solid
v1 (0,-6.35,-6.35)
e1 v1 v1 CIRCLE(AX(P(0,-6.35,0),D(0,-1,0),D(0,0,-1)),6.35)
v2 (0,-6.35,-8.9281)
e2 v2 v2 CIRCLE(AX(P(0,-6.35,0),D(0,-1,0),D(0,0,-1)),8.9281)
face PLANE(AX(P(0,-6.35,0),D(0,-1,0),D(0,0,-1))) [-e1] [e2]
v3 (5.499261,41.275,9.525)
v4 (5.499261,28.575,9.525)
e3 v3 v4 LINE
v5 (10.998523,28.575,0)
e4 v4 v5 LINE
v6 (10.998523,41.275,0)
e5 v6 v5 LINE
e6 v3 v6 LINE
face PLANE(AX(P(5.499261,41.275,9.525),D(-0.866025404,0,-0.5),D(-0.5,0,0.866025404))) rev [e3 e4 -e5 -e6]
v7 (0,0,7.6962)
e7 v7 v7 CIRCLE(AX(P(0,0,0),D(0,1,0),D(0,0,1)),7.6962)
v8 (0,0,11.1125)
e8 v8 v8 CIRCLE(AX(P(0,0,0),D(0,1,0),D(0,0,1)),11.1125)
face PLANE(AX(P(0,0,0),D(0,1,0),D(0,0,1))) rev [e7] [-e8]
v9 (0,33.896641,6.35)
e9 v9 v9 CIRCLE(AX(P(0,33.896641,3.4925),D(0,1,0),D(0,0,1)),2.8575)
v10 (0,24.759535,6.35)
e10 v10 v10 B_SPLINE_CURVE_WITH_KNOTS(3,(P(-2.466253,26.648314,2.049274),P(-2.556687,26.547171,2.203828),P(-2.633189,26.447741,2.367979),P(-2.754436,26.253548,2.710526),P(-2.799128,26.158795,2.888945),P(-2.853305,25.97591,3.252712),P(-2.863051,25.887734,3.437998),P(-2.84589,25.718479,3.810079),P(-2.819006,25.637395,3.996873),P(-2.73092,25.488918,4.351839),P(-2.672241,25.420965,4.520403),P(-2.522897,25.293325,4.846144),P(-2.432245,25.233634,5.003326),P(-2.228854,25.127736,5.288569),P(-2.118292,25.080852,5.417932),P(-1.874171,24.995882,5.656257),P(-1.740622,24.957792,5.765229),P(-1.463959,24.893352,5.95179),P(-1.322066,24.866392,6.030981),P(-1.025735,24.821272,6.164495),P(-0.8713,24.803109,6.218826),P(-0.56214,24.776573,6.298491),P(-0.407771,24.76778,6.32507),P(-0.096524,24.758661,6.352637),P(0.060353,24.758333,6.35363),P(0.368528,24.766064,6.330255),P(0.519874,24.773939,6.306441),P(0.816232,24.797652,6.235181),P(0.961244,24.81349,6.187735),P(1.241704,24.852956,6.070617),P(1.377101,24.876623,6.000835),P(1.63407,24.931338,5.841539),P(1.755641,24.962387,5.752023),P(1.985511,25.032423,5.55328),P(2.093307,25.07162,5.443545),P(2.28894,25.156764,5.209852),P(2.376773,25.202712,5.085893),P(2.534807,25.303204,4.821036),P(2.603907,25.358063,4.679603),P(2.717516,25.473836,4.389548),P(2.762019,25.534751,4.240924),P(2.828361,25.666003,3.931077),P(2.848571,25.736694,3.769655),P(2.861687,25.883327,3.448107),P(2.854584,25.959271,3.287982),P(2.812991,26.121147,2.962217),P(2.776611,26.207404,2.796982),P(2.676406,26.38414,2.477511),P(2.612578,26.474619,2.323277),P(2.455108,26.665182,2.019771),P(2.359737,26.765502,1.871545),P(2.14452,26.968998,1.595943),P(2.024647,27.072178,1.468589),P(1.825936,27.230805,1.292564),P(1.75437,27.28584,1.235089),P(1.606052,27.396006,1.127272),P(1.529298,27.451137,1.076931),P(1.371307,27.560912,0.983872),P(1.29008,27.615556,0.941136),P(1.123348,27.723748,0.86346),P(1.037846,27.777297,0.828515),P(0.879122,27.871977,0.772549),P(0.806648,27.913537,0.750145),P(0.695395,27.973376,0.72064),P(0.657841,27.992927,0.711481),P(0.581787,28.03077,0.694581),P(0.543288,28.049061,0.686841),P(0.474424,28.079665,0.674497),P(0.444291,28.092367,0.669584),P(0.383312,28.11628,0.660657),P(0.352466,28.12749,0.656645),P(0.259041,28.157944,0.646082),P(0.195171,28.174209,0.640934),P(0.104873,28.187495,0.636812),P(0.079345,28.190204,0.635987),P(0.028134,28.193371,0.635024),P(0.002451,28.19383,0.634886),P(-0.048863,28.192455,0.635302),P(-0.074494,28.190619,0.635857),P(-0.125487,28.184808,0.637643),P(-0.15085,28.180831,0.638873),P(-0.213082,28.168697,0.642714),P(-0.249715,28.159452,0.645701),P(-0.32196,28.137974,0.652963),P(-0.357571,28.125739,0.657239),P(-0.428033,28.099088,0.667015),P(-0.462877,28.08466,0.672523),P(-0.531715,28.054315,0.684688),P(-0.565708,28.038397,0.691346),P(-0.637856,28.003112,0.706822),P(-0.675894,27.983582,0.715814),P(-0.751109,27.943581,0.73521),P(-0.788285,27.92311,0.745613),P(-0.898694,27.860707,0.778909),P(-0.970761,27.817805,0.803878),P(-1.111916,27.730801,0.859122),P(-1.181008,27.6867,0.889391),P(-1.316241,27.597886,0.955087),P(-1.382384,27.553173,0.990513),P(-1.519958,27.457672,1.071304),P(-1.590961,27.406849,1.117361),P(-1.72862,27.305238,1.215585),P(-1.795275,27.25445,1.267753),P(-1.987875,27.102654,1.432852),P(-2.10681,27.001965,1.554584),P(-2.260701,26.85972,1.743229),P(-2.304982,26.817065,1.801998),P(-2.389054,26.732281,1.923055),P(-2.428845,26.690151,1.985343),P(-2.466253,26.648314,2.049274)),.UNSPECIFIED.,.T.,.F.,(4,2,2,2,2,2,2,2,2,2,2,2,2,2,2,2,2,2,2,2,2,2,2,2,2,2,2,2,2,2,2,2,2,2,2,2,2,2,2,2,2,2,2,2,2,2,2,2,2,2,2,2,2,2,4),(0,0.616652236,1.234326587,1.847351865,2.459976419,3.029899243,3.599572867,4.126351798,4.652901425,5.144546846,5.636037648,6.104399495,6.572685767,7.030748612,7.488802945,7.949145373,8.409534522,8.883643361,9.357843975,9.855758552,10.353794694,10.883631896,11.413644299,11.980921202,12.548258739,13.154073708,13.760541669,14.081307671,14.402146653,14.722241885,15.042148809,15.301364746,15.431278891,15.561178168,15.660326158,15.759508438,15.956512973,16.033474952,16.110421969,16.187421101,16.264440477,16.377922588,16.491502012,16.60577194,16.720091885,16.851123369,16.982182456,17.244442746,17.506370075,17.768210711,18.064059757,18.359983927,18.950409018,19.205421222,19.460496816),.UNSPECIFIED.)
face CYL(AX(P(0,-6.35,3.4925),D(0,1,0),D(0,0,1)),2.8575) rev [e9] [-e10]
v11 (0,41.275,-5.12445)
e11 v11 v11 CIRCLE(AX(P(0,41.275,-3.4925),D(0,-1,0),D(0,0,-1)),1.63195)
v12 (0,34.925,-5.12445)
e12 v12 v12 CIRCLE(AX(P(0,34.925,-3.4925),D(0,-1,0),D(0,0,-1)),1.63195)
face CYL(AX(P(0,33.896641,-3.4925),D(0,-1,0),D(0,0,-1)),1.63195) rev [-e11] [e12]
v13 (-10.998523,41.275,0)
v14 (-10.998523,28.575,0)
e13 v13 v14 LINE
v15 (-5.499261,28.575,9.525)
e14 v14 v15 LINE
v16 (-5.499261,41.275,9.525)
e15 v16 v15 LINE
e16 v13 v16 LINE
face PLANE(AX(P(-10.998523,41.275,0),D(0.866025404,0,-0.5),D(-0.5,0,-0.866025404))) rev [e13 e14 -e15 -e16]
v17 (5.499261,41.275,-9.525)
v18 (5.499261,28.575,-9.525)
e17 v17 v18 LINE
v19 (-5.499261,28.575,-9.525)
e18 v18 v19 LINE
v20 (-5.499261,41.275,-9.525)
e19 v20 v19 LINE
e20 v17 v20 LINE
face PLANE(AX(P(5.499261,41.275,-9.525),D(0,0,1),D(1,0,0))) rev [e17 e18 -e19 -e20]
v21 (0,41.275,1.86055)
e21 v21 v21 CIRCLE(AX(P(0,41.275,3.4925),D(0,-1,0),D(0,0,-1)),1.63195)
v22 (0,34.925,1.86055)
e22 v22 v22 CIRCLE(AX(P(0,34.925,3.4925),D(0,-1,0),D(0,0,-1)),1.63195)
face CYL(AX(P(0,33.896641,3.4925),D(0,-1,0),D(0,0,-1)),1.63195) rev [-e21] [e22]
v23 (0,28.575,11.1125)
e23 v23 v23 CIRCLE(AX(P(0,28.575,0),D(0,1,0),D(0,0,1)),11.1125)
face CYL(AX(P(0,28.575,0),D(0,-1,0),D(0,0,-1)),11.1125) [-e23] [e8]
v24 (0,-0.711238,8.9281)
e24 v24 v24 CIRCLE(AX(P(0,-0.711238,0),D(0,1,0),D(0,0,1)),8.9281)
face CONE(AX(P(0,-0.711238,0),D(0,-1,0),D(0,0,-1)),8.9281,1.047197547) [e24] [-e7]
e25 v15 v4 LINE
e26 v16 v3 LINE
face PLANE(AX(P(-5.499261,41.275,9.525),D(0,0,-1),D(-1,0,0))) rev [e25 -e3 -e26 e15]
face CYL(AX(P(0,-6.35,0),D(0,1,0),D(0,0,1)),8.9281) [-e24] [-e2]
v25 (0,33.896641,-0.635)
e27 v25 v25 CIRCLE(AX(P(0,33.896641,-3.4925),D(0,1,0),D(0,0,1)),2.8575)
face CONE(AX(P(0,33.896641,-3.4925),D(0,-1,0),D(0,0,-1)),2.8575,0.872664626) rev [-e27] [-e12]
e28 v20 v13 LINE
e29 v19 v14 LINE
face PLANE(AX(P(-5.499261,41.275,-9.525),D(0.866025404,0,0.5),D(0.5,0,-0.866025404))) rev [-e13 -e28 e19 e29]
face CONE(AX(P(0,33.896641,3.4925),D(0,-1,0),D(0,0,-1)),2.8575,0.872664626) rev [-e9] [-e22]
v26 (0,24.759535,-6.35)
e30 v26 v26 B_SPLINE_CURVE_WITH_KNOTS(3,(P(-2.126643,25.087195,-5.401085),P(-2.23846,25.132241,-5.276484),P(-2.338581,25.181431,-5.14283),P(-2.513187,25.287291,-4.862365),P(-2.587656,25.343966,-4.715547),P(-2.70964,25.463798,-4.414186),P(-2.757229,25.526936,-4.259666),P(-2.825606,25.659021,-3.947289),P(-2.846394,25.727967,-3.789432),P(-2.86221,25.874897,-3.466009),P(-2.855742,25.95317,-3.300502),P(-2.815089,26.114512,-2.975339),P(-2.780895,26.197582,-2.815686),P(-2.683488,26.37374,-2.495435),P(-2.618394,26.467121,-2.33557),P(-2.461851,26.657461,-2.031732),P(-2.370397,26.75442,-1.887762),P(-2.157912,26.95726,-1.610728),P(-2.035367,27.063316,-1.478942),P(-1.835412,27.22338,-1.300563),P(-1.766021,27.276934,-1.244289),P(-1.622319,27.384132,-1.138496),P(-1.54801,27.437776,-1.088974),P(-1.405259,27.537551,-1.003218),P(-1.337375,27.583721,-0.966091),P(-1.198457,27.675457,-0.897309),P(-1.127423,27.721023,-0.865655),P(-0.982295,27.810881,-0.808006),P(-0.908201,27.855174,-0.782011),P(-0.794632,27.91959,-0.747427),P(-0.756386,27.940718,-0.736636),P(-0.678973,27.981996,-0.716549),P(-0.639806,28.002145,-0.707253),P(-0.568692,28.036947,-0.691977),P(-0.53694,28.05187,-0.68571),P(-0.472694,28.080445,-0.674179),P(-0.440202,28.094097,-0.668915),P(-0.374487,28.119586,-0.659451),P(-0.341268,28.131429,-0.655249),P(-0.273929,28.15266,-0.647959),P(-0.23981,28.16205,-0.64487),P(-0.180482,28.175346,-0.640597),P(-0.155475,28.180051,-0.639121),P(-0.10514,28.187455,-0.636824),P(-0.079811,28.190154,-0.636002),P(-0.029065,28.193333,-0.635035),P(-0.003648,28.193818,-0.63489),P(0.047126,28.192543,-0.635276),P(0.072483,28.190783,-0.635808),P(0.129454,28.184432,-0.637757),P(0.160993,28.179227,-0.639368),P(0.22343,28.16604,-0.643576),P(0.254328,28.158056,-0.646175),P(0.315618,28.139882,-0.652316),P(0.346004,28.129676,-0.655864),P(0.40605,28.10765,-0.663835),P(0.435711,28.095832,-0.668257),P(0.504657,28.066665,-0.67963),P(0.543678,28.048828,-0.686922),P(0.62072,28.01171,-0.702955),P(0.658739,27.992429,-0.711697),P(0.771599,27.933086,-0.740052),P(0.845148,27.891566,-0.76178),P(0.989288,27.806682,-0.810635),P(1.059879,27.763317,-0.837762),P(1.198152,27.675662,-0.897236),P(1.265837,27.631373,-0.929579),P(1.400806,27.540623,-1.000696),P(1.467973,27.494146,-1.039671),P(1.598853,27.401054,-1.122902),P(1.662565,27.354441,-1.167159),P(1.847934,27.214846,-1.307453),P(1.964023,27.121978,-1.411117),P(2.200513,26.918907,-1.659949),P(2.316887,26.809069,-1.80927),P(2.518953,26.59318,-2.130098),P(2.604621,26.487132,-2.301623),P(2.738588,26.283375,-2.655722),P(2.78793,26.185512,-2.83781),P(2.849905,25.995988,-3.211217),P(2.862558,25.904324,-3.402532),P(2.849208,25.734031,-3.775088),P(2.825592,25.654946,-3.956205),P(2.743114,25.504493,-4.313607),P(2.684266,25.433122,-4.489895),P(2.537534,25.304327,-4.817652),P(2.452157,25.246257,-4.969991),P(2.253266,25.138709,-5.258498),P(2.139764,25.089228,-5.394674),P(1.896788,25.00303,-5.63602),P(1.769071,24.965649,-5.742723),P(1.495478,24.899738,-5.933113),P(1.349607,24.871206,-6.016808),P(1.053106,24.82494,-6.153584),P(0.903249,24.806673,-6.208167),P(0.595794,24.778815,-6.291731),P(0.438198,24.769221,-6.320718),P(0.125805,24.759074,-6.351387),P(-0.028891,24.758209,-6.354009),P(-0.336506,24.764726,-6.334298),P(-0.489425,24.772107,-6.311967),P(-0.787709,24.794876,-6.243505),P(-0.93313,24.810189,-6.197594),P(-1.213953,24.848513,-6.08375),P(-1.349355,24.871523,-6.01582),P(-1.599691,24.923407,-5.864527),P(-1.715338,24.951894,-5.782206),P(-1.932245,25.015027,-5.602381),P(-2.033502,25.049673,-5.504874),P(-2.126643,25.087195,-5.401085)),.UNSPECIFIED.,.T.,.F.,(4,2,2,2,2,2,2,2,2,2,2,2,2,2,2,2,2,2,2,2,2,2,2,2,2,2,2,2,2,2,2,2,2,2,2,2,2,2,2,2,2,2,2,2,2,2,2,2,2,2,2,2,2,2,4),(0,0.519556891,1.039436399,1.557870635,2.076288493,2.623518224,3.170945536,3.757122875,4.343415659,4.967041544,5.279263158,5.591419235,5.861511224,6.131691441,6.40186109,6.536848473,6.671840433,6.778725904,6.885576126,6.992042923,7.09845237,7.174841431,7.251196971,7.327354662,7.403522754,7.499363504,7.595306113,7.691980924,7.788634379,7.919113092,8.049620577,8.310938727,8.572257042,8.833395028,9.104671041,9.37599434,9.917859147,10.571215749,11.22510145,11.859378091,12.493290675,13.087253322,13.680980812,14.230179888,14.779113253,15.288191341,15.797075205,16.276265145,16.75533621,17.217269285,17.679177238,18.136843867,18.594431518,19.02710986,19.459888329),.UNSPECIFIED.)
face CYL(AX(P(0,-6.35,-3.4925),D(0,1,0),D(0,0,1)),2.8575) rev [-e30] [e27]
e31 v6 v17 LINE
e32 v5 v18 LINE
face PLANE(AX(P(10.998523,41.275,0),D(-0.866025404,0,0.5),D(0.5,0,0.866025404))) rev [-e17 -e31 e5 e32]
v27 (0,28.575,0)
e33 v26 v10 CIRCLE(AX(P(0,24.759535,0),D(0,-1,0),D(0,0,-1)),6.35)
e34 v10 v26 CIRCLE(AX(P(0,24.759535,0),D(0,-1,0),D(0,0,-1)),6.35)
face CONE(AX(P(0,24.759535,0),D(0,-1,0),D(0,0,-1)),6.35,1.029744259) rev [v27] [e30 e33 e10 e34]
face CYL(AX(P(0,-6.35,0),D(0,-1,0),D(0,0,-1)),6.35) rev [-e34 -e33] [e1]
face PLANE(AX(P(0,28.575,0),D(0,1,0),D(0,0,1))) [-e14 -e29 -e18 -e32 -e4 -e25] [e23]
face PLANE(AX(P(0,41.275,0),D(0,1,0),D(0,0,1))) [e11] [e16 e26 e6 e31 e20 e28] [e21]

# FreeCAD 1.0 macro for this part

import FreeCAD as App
import Part
import Sketcher
from FreeCAD import Vector
Q = App.Units.Quantity


def add_polygon(sketch, points):
    """Adds a closed chain of lines whose ends are joined by coincident constraints."""
    first, n = sketch.GeometryCount, len(points)
    for a, b in zip(points, points[1:] + points[:1]):
        sketch.addGeometry(Part.LineSegment(App.Vector(*a, 0), App.Vector(*b, 0)), False)
    for i in range(n):
        sketch.addConstraint(Sketcher.Constraint("Coincident", first + i, 2, first + (i + 1) % n, 1))

doc = App.newDocument("Part")
params = doc.addObject("Spreadsheet::Sheet", "Params")
for row, (alias, value) in enumerate([
    ("sketch1_diameter", "0.875 in"),
    ("pad1_length", "1.125 in"),
    ("pad2_length", "0.5 in"),
    ("sketch3_diameter", "0.703 in"),
    ("pad3_length", "0.25 in"),
    ("sketch4_diameter", "0.5 in"),
    ("hole_diameter", "0.5 in"),
    ("hole_depth", "31.109535 mm"),
    ("sketch5_width", "0.25 in"),
    ("groove_angle", "360 deg"),
    ("linearpattern_pitch", "0.275 in"),
    ("sketch6_diameter", "0.225 in"),
    ("groove2_angle", "360 deg"),
], start=1):
    params.set(f"A{row}", alias)
    params.set(f"B{row}", "=" + value)
    params.setAlias(f"B{row}", alias)

body = doc.addObject("PartDesign::Body", "Body")

# Sketch on XZ plane
sketch1 = body.newObject("Sketcher::SketchObject", "Sketch")
sketch1.AttachmentSupport = (doc.getObject("XZ_Plane"), [""])
sketch1.MapMode = "FlatFace"
sketch1.addGeometry(Part.Circle(Vector(0, 0, 0), Vector(0, 0, 1), 11), False)
sketch1.addConstraint(Sketcher.Constraint("Coincident", 0, 3, -1, 1))
sketch1.addConstraint(Sketcher.Constraint("Diameter", 0, Q("0.875 in")))
sketch1.setExpression("Constraints[1]", "Params.sketch1_diameter")
pad1 = body.newObject("PartDesign::Pad", "Pad")
pad1.Profile = sketch1
pad1.setExpression("Length", "Params.pad1_length")
pad1.Reversed = True

# Sketch on XZ plane
sketch2 = body.newObject("Sketcher::SketchObject", "Sketch001")
sketch2.AttachmentSupport = (doc.getObject("XZ_Plane"), [""])
sketch2.MapMode = "FlatFace"
sketch2.AttachmentOffset = App.Placement(Vector(0, 0, -1.125 * 25.4), App.Rotation())
add_polygon(sketch2, [(5, -10), (-5, -10), (-11, 0), (-5, 10), (5, 10), (11, 0)])  # lines 0-5
sketch2.addConstraint(Sketcher.Constraint("Horizontal", 0))
sketch2.addConstraint(Sketcher.Constraint("Horizontal", 3))
sketch2.addConstraint(Sketcher.Constraint("Symmetric", 0, 2, 3, 2, -1, 1))
sketch2.addConstraint(Sketcher.Constraint("Symmetric", 1, 2, 4, 2, -1, 1))
sketch2.addConstraint(Sketcher.Constraint("PointOnObject", 1, 2, -1))
sketch2.addConstraint(Sketcher.Constraint("Parallel", 2, 5))
sketch2.addConstraint(Sketcher.Constraint("Vertical", 0, 2, 2, 2))
sketch2.addConstraint(Sketcher.Constraint("Angle", 1, Q("120 deg")))
sketch2.addConstraint(Sketcher.Constraint("DistanceY", 0, 2, 2, 2, Q("0.75 in")))
sketch2.addConstraint(Sketcher.Constraint("DistanceX", 0, 2, 0, 1, 10.998523))
pad2 = body.newObject("PartDesign::Pad", "Pad001")
pad2.Profile = sketch2
pad2.setExpression("Length", "Params.pad2_length")
pad2.Reversed = True

# Sketch on XZ plane
sketch3 = body.newObject("Sketcher::SketchObject", "Sketch002")
sketch3.AttachmentSupport = (doc.getObject("XZ_Plane"), [""])
sketch3.MapMode = "FlatFace"
sketch3.addGeometry(Part.Circle(Vector(0, 0, 0), Vector(0, 0, 1), 9), False)
sketch3.addConstraint(Sketcher.Constraint("Coincident", 0, 3, -1, 1))
sketch3.addConstraint(Sketcher.Constraint("Diameter", 0, Q("0.703 in")))
sketch3.setExpression("Constraints[1]", "Params.sketch3_diameter")
pad3 = body.newObject("PartDesign::Pad", "Pad002")
pad3.Profile = sketch3
pad3.setExpression("Length", "Params.pad3_length")

# Sketch on XZ plane
sketch4 = body.newObject("Sketcher::SketchObject", "Sketch003")
sketch4.AttachmentSupport = (doc.getObject("XZ_Plane"), [""])
sketch4.MapMode = "FlatFace"
sketch4.AttachmentOffset = App.Placement(Vector(0, 0, 0.25 * 25.4), App.Rotation())
sketch4.addGeometry(Part.Circle(Vector(0, 0, 0), Vector(0, 0, 1), 6), False)
sketch4.addConstraint(Sketcher.Constraint("Coincident", 0, 3, -1, 1))
sketch4.addConstraint(Sketcher.Constraint("Diameter", 0, Q("0.5 in")))
sketch4.setExpression("Constraints[1]", "Params.sketch4_diameter")
doc.recompute()
hole = body.newObject("PartDesign::Hole", "Hole")
hole.Profile = sketch4
hole.ThreadType = "None"
hole.setExpression("Diameter", "Params.hole_diameter")
hole.DepthType = "Dimension"
hole.setExpression("Depth", "Params.hole_depth")
hole.DrillPoint = "Angled"
hole.DrillPointAngle = 118

# Sketch on YZ plane
sketch5 = body.newObject("Sketcher::SketchObject", "Sketch004")
sketch5.AttachmentSupport = (doc.getObject("YZ_Plane"), [""])
sketch5.MapMode = "FlatFace"
add_polygon(sketch5, [(41.3, 3.5), (33.9, 3.5), (33.9, 0.6), (34.9, 1.9), (41.3, 1.9)])  # lines 0-4
sketch5.addGeometry(Part.LineSegment(Vector(33.9, 3.5, 0), Vector(41.3, 3.5, 0)), True)  # axis
sketch5.addConstraint(Sketcher.Constraint("Horizontal", 0))
sketch5.addConstraint(Sketcher.Constraint("Vertical", 1))
sketch5.addConstraint(Sketcher.Constraint("Horizontal", 3))
sketch5.addConstraint(Sketcher.Constraint("Vertical", 4))
sketch5.addConstraint(Sketcher.Constraint("Horizontal", 5))
sketch5.addConstraint(Sketcher.Constraint("Coincident", 5, 1, 0, 2))
sketch5.addConstraint(Sketcher.Constraint("Vertical", 3, 2, 5, 2))
sketch5.addConstraint(Sketcher.Constraint("Angle", 2, Q("50 deg")))
sketch5.addConstraint(Sketcher.Constraint("DistanceX", 3, 1, 3, 2, Q("0.25 in")))
sketch5.addConstraint(Sketcher.Constraint("DistanceY", 1, 2, 1, 1, Q("0.1125 in")))
sketch5.addConstraint(Sketcher.Constraint("DistanceY", -1, 1, 1, 2, Q("0.025 in")))
sketch5.addConstraint(Sketcher.Constraint("DistanceX", -1, 1, 2, 2, Q("1.375 in")))
sketch5.addConstraint(Sketcher.Constraint("DistanceX", 0, 2, 0, 1, 7.378359))
sketch5.setExpression("Constraints[13]", "Params.sketch5_width")
groove = body.newObject("PartDesign::Groove", "Groove")
groove.Profile = sketch5
groove.ReferenceAxis = (sketch5, ["Axis0"])
groove.setExpression("Angle", "Params.groove_angle")
doc.recompute()

linearpattern = body.newObject("PartDesign::LinearPattern", "LinearPattern")
linearpattern.Originals = [groove]
linearpattern.Direction = (doc.getObject("Z_Axis"), [""])
linearpattern.Mode = "offset"
linearpattern.setExpression("Offset", "Params.linearpattern_pitch")
linearpattern.Occurrences = 2
linearpattern.Reversed = True
body.Tip = linearpattern

# Sketch on XZ plane
sketch6 = body.newObject("Sketcher::SketchObject", "Sketch005")
sketch6.AttachmentSupport = (doc.getObject("XZ_Plane"), [""])
sketch6.MapMode = "FlatFace"
sketch6.AttachmentOffset = App.Placement(Vector(0, 0, -33.896641), App.Rotation())
sketch6.addGeometry(Part.Circle(Vector(0, -3.5, 0), Vector(0, 0, 1), 2.9), False)
sketch6.addGeometry(Part.Circle(Vector(0, 3.5, 0), Vector(0, 0, 1), 2.9), False)
sketch6.addConstraint(Sketcher.Constraint("Equal", 0, 1))
sketch6.addConstraint(Sketcher.Constraint("Symmetric", 0, 3, 1, 3, -1, 1))
sketch6.addConstraint(Sketcher.Constraint("PointOnObject", 0, 3, -2))
sketch6.addConstraint(Sketcher.Constraint("Diameter", 0, Q("0.225 in")))
sketch6.addConstraint(Sketcher.Constraint("DistanceY", 0, 3, 1, 3, Q("0.275 in")))
sketch6.setExpression("Constraints[3]", "Params.sketch6_diameter")
pocket1 = body.newObject("PartDesign::Pocket", "Pocket")
pocket1.Profile = sketch6
pocket1.Type = "ThroughAll"
pocket1.Reversed = True

# Sketch on XY plane
sketch7 = body.newObject("Sketcher::SketchObject", "Sketch006")
sketch7.AttachmentSupport = (doc.getObject("XY_Plane"), [""])
sketch7.MapMode = "FlatFace"
add_polygon(sketch7, [(-7.7, 0), (-8.9, 0), (-8.9, -0.7)])  # lines 0-2
sketch7.addConstraint(Sketcher.Constraint("Horizontal", 0))
sketch7.addConstraint(Sketcher.Constraint("Vertical", 1))
sketch7.addConstraint(Sketcher.Constraint("PointOnObject", 0, 2, -1))
sketch7.addConstraint(Sketcher.Constraint("Angle", 2, Q("30 deg")))
sketch7.addConstraint(Sketcher.Constraint("DistanceX", 0, 2, 0, 1, Q("0.0485 in")))
sketch7.addConstraint(Sketcher.Constraint("DistanceX", 2, 2, -1, 1, Q("0.303 in")))
groove2 = body.newObject("PartDesign::Groove", "Groove001")
groove2.Profile = sketch7
groove2.ReferenceAxis = (sketch7, ["V_Axis"])
groove2.setExpression("Angle", "Params.groove2_angle")

doc.recompute()
